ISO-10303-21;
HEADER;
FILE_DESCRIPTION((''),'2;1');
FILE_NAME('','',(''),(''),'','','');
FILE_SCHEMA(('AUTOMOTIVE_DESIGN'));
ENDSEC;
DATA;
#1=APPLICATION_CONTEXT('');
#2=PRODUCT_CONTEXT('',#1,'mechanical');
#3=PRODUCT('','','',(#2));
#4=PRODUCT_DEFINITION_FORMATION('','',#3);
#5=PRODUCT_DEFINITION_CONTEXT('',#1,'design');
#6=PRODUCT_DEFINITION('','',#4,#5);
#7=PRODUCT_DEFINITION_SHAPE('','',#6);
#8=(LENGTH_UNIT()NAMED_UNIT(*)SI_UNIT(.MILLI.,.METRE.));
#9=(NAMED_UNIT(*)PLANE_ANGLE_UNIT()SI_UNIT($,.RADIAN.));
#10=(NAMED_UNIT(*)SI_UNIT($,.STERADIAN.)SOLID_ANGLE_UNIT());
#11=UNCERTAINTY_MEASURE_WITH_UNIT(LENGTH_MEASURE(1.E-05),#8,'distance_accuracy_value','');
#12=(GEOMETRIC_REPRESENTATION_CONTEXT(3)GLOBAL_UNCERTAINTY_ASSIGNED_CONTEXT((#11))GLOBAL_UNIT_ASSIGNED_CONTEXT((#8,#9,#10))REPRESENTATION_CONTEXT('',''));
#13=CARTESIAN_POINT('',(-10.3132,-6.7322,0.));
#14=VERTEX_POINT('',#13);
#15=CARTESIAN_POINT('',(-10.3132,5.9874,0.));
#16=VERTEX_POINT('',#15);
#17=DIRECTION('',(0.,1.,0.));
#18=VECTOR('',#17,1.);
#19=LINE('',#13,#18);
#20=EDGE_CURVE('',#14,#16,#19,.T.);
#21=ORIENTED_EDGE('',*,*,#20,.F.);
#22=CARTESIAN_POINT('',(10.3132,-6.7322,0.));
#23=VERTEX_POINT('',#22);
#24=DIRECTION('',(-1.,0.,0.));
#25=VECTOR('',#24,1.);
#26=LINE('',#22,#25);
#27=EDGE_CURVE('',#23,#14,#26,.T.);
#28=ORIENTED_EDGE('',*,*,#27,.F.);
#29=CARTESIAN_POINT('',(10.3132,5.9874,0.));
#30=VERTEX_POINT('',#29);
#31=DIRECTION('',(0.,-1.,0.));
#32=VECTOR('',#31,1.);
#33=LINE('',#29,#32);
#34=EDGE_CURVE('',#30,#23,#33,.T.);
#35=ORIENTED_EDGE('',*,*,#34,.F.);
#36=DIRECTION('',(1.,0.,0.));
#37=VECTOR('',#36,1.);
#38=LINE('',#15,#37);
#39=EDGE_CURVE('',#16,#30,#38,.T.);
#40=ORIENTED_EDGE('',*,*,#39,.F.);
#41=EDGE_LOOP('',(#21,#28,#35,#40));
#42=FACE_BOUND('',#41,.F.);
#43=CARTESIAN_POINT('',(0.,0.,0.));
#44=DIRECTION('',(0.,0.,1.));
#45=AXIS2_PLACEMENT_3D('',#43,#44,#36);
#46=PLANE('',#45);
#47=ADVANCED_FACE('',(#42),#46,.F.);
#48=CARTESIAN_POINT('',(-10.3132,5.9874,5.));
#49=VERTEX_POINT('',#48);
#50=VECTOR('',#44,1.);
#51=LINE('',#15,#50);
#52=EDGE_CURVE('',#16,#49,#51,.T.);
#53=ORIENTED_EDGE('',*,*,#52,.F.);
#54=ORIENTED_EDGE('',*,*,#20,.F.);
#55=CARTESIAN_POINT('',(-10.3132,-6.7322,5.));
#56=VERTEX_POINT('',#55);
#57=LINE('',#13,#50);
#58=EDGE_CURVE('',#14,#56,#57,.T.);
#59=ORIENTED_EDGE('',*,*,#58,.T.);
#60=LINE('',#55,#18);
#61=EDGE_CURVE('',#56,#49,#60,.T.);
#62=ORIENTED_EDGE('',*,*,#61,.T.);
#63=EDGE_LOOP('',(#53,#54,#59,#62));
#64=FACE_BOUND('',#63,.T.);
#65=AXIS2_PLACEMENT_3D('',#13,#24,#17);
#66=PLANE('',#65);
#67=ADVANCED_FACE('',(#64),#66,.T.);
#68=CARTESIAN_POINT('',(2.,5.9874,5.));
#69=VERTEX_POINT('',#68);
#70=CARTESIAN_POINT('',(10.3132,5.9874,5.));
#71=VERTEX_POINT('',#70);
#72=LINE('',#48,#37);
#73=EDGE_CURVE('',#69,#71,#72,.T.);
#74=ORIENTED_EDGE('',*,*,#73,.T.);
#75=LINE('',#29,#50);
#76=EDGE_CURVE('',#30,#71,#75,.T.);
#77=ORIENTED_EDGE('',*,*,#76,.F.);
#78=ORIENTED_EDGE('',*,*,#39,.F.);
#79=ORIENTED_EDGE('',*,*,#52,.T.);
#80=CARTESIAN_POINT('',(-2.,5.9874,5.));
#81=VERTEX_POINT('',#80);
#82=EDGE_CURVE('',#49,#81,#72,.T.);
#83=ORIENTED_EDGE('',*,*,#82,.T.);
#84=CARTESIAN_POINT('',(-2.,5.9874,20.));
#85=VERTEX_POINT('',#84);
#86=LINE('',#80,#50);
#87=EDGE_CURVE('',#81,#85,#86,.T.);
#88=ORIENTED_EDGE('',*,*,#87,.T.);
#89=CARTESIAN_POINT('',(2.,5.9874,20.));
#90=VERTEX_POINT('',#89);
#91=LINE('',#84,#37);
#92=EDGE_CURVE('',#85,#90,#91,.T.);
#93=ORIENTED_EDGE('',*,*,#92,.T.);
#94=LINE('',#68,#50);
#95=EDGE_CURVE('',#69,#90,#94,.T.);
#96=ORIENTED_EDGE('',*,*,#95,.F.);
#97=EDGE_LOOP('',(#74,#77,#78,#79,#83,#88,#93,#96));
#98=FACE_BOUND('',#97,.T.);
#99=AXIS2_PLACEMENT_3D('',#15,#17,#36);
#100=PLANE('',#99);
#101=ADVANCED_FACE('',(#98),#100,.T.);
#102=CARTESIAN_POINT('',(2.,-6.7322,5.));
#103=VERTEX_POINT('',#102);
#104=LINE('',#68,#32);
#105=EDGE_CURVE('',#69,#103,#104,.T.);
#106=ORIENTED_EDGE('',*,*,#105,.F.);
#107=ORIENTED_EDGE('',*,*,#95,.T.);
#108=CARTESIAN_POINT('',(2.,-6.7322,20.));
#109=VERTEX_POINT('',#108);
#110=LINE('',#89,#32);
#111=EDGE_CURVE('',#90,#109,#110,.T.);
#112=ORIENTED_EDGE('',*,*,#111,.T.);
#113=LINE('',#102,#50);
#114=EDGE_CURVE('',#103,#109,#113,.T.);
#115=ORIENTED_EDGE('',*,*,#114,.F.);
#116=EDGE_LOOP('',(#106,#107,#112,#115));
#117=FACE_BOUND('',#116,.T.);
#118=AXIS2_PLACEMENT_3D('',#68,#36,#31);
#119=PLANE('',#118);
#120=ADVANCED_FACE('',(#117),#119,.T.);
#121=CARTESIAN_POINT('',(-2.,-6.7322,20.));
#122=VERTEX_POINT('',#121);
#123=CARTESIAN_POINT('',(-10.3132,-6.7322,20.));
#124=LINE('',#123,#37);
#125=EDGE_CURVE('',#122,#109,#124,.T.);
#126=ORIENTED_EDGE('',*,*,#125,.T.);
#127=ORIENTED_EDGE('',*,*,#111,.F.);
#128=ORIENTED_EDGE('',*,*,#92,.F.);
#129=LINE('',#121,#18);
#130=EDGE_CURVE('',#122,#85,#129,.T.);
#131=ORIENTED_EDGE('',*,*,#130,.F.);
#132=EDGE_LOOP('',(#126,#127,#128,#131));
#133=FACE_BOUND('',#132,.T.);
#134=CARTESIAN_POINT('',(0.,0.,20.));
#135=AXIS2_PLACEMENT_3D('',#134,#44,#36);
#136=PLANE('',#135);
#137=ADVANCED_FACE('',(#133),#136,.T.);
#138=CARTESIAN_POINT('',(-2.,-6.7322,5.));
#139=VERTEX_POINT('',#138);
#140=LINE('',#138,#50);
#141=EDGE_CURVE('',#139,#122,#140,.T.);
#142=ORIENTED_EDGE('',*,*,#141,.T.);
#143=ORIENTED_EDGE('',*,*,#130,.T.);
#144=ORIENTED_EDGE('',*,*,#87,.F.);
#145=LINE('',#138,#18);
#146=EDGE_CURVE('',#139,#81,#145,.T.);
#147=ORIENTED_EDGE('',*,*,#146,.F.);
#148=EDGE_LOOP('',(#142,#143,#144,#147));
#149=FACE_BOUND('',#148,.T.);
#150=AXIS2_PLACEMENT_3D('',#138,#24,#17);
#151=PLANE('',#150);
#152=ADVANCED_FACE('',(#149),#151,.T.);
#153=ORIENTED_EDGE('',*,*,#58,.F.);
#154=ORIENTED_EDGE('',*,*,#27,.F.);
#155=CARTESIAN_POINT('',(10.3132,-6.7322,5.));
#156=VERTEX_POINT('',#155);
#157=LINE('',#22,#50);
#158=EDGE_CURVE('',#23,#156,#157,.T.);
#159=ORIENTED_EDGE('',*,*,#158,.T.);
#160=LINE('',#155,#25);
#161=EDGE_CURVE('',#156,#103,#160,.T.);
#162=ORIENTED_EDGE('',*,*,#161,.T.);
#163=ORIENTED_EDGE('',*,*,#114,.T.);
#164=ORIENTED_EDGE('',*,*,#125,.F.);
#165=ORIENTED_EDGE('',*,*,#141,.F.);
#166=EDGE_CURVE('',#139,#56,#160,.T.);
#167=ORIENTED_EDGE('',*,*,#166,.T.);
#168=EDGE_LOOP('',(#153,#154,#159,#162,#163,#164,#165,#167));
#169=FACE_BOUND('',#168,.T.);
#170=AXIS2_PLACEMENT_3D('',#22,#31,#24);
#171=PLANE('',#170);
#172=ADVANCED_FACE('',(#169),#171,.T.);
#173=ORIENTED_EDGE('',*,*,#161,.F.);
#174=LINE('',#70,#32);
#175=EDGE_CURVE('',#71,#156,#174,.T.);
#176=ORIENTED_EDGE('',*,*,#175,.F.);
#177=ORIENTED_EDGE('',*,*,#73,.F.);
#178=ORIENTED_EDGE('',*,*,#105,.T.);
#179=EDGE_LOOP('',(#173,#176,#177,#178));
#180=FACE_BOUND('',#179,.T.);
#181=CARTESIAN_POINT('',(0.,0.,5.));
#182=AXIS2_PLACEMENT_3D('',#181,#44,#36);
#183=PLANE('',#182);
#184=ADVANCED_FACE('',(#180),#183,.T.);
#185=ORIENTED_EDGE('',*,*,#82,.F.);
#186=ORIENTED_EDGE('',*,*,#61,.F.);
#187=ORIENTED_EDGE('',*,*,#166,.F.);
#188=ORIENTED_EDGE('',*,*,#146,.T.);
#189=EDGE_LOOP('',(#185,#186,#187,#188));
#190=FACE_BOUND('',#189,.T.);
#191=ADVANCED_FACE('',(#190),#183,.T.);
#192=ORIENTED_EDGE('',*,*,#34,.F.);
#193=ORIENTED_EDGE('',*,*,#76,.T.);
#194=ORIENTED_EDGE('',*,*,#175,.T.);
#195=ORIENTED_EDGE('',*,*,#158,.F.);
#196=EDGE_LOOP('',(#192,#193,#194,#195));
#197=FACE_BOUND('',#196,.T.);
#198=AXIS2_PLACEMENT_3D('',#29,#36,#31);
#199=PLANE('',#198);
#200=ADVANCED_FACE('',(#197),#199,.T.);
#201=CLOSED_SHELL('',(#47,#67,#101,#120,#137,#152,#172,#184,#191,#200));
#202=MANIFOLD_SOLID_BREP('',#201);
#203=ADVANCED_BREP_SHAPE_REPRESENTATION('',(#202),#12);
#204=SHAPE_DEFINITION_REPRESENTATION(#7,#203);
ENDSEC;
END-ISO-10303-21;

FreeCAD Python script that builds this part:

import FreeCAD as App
import Part
import Sketcher

V = App.Vector
Q = App.Units.Quantity


def add_polygon(sketch, points):
    """Adds a closed chain of lines whose ends are joined by coincident constraints."""
    first, n = sketch.GeometryCount, len(points)
    for a, b in zip(points, points[1:] + points[:1]):
        sketch.addGeometry(Part.LineSegment(App.Vector(*a, 0), App.Vector(*b, 0)), False)
    for i in range(n):
        sketch.addConstraint(Sketcher.Constraint("Coincident", first + i, 2, first + (i + 1) % n, 1))

doc = App.newDocument("Part")
body = doc.addObject("PartDesign::Body", "Body")

# Sketch on XY plane
sketch1 = doc.addObject("Sketcher::SketchObject", "Sketch")
body.addObject(sketch1)
sketch1.AttachmentSupport = (doc.XY_Plane, [""])
sketch1.MapMode = "FlatFace"
add_polygon(sketch1, [(10, 6), (-10, 6), (-10, -7), (10, -7)])  # lines 0-3
sketch1.addConstraint(Sketcher.Constraint("Horizontal", 0))
sketch1.addConstraint(Sketcher.Constraint("Vertical", 1))
sketch1.addConstraint(Sketcher.Constraint("Horizontal", 2))
sketch1.addConstraint(Sketcher.Constraint("Vertical", 3))
sketch1.addConstraint(Sketcher.Constraint("DistanceX", 0, 2, 0, 1, Q("20.6264 mm")))
sketch1.addConstraint(Sketcher.Constraint("DistanceY", 1, 2, 1, 1, Q("12.7196 mm")))
sketch1.addConstraint(Sketcher.Constraint("DistanceX", 0, 2, -1, 1, Q("10.3132 mm")))
sketch1.addConstraint(Sketcher.Constraint("DistanceY", -1, 1, 0, 2, Q("5.9874 mm")))
pad1 = doc.addObject("PartDesign::Pad", "Pad")
body.addObject(pad1)
pad1.Profile = sketch1
pad1.Length = 5

# Sketch on XY plane
sketch2 = doc.addObject("Sketcher::SketchObject", "Sketch001")
body.addObject(sketch2)
sketch2.AttachmentSupport = (doc.XY_Plane, [""])
sketch2.MapMode = "FlatFace"
sketch2.AttachmentOffset = App.Placement(V(0, 0, 5), App.Rotation())
add_polygon(sketch2, [(2, -6.7), (2, 6), (-2, 6), (-2, -6.7)])  # lines 0-3
sketch2.addConstraint(Sketcher.Constraint("Vertical", 0))
sketch2.addConstraint(Sketcher.Constraint("Horizontal", 1))
sketch2.addConstraint(Sketcher.Constraint("Vertical", 2))
sketch2.addConstraint(Sketcher.Constraint("Horizontal", 3))
sketch2.addConstraint(Sketcher.Constraint("DistanceX", 1, 2, 1, 1, Q("4 mm")))
sketch2.addConstraint(Sketcher.Constraint("DistanceX", -1, 1, 0, 2, Q("2 mm")))
sketch2.addConstraint(Sketcher.Constraint("DistanceY", 0, 1, 0, 2, Q("12.7196 mm")))
sketch2.addConstraint(Sketcher.Constraint("DistanceY", -1, 1, 0, 2, Q("5.9874 mm")))
pad2 = doc.addObject("PartDesign::Pad", "Pad001")
body.addObject(pad2)
pad2.Profile = sketch2
pad2.Length = 15

doc.recompute()
